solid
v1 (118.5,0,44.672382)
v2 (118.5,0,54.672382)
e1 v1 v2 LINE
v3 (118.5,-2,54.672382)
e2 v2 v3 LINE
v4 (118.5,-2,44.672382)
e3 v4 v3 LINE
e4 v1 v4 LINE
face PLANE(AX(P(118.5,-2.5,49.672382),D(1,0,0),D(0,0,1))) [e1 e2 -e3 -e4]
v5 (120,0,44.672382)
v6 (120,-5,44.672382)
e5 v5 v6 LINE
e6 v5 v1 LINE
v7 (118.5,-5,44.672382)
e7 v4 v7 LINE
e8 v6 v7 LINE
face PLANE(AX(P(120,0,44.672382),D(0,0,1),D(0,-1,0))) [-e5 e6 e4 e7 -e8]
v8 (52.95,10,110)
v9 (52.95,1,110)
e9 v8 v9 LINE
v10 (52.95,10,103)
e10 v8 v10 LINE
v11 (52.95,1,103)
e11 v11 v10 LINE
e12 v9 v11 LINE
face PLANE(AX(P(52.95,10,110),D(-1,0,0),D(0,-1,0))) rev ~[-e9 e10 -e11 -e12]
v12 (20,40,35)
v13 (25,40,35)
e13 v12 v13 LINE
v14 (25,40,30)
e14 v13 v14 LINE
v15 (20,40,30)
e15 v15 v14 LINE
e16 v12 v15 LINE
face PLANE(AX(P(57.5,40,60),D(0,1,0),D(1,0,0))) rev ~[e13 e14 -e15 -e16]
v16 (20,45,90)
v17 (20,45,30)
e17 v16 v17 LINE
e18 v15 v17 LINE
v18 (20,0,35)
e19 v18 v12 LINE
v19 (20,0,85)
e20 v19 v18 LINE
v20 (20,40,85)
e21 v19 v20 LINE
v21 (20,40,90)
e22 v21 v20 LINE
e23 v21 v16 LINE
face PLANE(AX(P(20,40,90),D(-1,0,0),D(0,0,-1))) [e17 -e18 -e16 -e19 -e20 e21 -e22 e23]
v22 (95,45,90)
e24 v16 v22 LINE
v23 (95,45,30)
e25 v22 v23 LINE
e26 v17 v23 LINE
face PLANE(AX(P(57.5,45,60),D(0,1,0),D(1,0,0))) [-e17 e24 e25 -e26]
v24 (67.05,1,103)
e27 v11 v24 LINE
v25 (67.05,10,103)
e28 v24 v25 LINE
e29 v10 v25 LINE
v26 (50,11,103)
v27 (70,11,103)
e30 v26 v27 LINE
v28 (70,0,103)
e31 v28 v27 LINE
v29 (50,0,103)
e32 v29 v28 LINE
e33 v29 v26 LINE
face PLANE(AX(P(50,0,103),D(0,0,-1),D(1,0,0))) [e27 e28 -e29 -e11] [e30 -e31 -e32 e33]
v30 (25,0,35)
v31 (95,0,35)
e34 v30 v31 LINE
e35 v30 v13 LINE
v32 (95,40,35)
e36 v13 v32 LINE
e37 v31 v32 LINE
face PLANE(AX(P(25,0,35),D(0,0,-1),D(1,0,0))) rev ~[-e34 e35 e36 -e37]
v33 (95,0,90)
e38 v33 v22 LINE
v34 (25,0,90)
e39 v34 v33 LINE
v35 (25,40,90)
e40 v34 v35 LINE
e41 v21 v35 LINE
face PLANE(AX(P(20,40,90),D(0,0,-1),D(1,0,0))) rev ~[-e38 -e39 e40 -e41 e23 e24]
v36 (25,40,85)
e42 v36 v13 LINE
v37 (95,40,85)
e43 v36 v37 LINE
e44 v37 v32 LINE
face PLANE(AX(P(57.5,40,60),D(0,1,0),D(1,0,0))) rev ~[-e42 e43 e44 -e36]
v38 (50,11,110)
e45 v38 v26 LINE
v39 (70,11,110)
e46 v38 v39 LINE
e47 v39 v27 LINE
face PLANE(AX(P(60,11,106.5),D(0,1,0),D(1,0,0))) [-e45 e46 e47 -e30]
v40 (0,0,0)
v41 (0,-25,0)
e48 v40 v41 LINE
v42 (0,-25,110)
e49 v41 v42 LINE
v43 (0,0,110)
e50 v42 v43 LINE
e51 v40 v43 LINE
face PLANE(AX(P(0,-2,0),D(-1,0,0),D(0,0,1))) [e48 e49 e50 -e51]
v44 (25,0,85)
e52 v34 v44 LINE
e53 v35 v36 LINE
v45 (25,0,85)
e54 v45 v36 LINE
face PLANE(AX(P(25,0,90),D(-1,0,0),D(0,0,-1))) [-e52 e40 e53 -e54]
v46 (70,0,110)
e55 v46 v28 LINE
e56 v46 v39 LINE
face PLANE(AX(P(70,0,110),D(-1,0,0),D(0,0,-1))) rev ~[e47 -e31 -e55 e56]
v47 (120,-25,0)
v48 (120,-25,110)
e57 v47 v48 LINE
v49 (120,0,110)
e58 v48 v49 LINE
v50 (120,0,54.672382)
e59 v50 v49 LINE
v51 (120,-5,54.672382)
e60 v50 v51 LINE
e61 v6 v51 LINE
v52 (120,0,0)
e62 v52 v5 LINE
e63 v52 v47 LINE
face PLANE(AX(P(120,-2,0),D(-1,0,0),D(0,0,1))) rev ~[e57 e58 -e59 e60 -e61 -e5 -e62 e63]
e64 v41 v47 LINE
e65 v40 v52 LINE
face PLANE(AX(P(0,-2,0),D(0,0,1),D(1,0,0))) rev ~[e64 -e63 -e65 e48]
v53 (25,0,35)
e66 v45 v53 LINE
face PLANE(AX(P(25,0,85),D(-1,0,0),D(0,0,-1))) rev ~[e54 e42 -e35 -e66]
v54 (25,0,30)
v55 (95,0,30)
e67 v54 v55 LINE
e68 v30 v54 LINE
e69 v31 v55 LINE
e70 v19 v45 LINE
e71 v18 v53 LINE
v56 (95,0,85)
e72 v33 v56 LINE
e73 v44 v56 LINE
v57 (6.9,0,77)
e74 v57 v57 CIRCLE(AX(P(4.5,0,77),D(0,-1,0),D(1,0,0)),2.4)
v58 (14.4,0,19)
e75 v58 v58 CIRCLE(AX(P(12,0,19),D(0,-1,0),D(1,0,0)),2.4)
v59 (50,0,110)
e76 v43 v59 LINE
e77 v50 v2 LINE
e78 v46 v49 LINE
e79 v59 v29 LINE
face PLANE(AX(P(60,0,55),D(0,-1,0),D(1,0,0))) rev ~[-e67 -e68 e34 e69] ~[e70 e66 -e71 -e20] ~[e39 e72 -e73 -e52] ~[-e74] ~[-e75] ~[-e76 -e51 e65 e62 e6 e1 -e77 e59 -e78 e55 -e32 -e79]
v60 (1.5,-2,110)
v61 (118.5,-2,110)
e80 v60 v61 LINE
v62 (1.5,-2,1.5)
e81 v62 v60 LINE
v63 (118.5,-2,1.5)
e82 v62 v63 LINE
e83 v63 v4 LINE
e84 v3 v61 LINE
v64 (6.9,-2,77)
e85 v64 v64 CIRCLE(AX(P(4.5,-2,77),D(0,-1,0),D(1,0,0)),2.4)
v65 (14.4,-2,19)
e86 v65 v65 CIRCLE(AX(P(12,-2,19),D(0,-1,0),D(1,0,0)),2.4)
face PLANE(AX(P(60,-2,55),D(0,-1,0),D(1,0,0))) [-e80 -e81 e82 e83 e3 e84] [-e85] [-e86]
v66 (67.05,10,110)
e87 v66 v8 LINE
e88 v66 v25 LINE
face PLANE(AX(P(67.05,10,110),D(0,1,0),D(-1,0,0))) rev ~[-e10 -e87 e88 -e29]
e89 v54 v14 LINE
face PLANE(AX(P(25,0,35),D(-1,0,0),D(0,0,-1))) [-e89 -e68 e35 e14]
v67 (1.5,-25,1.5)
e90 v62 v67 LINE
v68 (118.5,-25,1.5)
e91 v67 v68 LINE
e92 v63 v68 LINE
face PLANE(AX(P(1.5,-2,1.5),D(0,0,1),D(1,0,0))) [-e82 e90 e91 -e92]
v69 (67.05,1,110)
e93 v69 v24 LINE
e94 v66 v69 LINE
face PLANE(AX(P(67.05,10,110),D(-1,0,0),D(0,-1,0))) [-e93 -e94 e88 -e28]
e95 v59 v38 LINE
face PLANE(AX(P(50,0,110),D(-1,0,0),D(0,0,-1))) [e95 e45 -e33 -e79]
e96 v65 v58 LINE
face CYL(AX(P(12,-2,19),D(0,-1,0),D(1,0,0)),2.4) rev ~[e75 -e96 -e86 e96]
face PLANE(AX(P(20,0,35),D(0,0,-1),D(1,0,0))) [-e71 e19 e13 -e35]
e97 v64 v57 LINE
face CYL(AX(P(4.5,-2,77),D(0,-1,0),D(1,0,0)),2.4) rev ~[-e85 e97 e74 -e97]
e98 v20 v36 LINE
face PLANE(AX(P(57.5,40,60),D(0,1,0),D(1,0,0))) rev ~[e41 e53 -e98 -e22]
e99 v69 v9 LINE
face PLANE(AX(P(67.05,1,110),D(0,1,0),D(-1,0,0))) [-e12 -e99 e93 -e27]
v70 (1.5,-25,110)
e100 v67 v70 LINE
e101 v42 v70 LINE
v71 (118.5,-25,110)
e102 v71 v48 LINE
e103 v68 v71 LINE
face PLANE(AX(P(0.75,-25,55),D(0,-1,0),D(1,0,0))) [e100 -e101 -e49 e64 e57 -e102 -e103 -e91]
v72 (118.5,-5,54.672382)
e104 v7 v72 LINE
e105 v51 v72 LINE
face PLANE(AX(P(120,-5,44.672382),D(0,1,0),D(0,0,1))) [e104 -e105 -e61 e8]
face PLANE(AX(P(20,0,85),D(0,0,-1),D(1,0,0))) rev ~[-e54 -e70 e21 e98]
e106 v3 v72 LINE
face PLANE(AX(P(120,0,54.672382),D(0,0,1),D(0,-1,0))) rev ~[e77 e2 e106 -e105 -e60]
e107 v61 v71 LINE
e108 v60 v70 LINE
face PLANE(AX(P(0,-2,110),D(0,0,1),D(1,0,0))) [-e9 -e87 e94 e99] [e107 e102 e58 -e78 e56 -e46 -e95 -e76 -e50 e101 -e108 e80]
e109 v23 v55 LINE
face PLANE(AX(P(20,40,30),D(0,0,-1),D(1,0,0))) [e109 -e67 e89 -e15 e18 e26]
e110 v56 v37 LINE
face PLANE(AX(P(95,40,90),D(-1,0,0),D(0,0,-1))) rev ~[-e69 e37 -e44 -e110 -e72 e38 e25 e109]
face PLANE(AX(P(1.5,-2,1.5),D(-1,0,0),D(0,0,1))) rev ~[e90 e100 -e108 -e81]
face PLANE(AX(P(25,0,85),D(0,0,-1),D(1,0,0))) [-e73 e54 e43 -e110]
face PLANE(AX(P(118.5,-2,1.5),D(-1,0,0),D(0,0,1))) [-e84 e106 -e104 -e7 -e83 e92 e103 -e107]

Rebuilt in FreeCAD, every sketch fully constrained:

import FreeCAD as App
import Part
import Sketcher
from FreeCAD import Vector
Q = App.Units.Quantity


def add_polygon(sketch, points):
    """Adds a closed chain of lines whose ends are joined by coincident constraints."""
    first, n = sketch.GeometryCount, len(points)
    for a, b in zip(points, points[1:] + points[:1]):
        sketch.addGeometry(Part.LineSegment(App.Vector(*a, 0), App.Vector(*b, 0)), False)
    for i in range(n):
        sketch.addConstraint(Sketcher.Constraint("Coincident", first + i, 2, first + (i + 1) % n, 1))

doc = App.newDocument("Part")
body = doc.addObject("PartDesign::Body", "Body")

sketch1 = body.newObject("Sketcher::SketchObject", "Sketch")
sketch1.AttachmentSupport = (doc.getObject("XZ_Plane"), [""])
sketch1.MapMode = "FlatFace"
add_polygon(sketch1, [(0, 110), (0, 0), (120, 0), (120, 110)])
sketch1.addConstraint([
    Sketcher.Constraint("Vertical", 0),
    Sketcher.Constraint("Horizontal", 1),
    Sketcher.Constraint("Vertical", 2),
    Sketcher.Constraint("Horizontal", 3),
    Sketcher.Constraint("Coincident", 0, 2, -1, 1),
    Sketcher.Constraint("DistanceX", 1, 1, 1, 2, Q("120 mm")),
    Sketcher.Constraint("DistanceY", 0, 2, 0, 1, Q("110 mm")),
])
pad1 = body.newObject("PartDesign::Pad", "Pad")
pad1.Profile = sketch1
pad1.Length = 2

sketch2 = body.newObject("Sketcher::SketchObject", "Sketch001")
sketch2.AttachmentSupport = (doc.getObject("XZ_Plane"), [""])
sketch2.MapMode = "FlatFace"
sketch2.AttachmentOffset = App.Placement(Vector(0, 0, 2), App.Rotation())
sketch2.addGeometry([
    Part.Circle(Vector(12, 19, 0), Vector(0, 0, 1), 2.4),
    Part.Circle(Vector(4.5, 77, 0), Vector(0, 0, 1), 2.4),
], False)
sketch2.addConstraint([
    Sketcher.Constraint("Equal", 0, 1),
    Sketcher.Constraint("Diameter", 0, Q("4.8 mm")),
    Sketcher.Constraint("DistanceX", -1, 1, 0, 3, Q("12 mm")),
    Sketcher.Constraint("DistanceY", -1, 1, 0, 3, Q("19 mm")),
    Sketcher.Constraint("DistanceY", -1, 1, 1, 3, Q("77 mm")),
    Sketcher.Constraint("DistanceX", -1, 1, 1, 3, Q("4.5 mm")),
])
pocket1 = body.newObject("PartDesign::Pocket", "Pocket")
pocket1.Profile = sketch2
pocket1.Length = 5

sketch3 = body.newObject("Sketcher::SketchObject", "Sketch002")
sketch3.AttachmentSupport = (doc.getObject("XZ_Plane"), [""])
sketch3.MapMode = "FlatFace"
sketch3.AttachmentOffset = App.Placement(Vector(0, 0, 2), App.Rotation())
add_polygon(sketch3, [(0, 110), (0, 0), (120, 0), (120, 110), (118.5, 110), (118.5, 1.5), (1.5, 1.5), (1.5, 110)])
sketch3.addConstraint([
    Sketcher.Constraint("Vertical", 0),
    Sketcher.Constraint("Horizontal", 1),
    Sketcher.Constraint("Vertical", 2),
    Sketcher.Constraint("Horizontal", 3),
    Sketcher.Constraint("Vertical", 4),
    Sketcher.Constraint("Horizontal", 5),
    Sketcher.Constraint("Vertical", 6),
    Sketcher.Constraint("Horizontal", 7),
    Sketcher.Constraint("Coincident", 0, 2, -1, 1),
    Sketcher.Constraint("Horizontal", 3, 2, 6, 2),
    Sketcher.Constraint("Equal", 3, 7),
    Sketcher.Constraint("DistanceX", 1, 1, 1, 2, Q("120 mm")),
    Sketcher.Constraint("DistanceX", 5, 2, 5, 1, Q("117 mm")),
    Sketcher.Constraint("DistanceY", 0, 2, 0, 1, Q("110 mm")),
    Sketcher.Constraint("DistanceY", 4, 2, 4, 1, Q("108.5 mm")),
])
pad2 = body.newObject("PartDesign::Pad", "Pad001")
pad2.Profile = sketch3
pad2.Length = 23

sketch4 = body.newObject("Sketcher::SketchObject", "Sketch003")
sketch4.AttachmentSupport = (doc.getObject("YZ_Plane"), [""])
sketch4.MapMode = "FlatFace"
sketch4.AttachmentOffset = App.Placement(Vector(0, 0, 120), App.Rotation())
add_polygon(sketch4, [(-5, 44.672382), (0, 44.672382), (0, 54.672382), (-5, 54.672382)])
sketch4.addConstraint([
    Sketcher.Constraint("Horizontal", 0),
    Sketcher.Constraint("Vertical", 1),
    Sketcher.Constraint("Horizontal", 2),
    Sketcher.Constraint("Vertical", 3),
    Sketcher.Constraint("PointOnObject", 0, 2, -2),
    Sketcher.Constraint("DistanceX", 0, 1, 0, 2, Q("5 mm")),
    Sketcher.Constraint("DistanceY", 1, 1, 1, 2, Q("10 mm")),
    Sketcher.Constraint("DistanceY", -1, 1, 0, 2, Q("44.672382 mm")),
])
pocket2 = body.newObject("PartDesign::Pocket", "Pocket001")
pocket2.Profile = sketch4
pocket2.Length = 1.5

sketch5 = body.newObject("Sketcher::SketchObject", "Sketch004")
sketch5.AttachmentSupport = (doc.getObject("XZ_Plane"), [""])
sketch5.MapMode = "FlatFace"
add_polygon(sketch5, [(25, 30), (25, 35), (95, 35), (95, 30)])
add_polygon(sketch5, [(20, 35), (20, 85), (25, 85), (25, 35)])
add_polygon(sketch5, [(25, 85), (25, 90), (95, 90), (95, 85)])
sketch5.addConstraint([
    Sketcher.Constraint("Vertical", 0),
    Sketcher.Constraint("Horizontal", 1),
    Sketcher.Constraint("Vertical", 2),
    Sketcher.Constraint("Horizontal", 3),
    Sketcher.Constraint("Vertical", 4),
    Sketcher.Constraint("Horizontal", 5),
    Sketcher.Constraint("Vertical", 6),
    Sketcher.Constraint("Horizontal", 7),
    Sketcher.Constraint("Vertical", 8),
    Sketcher.Constraint("Horizontal", 9),
    Sketcher.Constraint("Vertical", 10),
    Sketcher.Constraint("Horizontal", 11),
    Sketcher.Constraint("Coincident", 6, 2, 0, 2),
    Sketcher.Constraint("Coincident", 11, 2, 5, 2),
    Sketcher.Constraint("Vertical", 2, 2, 9, 2),
    Sketcher.Constraint("Equal", 7, 0),
    Sketcher.Constraint("Equal", 2, 8),
    Sketcher.Constraint("DistanceX", 1, 1, 1, 2, Q("70 mm")),
    Sketcher.Constraint("DistanceX", 5, 1, 5, 2, Q("5 mm")),
    Sketcher.Constraint("DistanceY", 4, 1, 4, 2, Q("50 mm")),
    Sketcher.Constraint("DistanceX", -1, 1, 0, 2, Q("25 mm")),
    Sketcher.Constraint("DistanceY", -1, 1, 0, 2, Q("35 mm")),
])
pad3 = body.newObject("PartDesign::Pad", "Pad002")
pad3.Profile = sketch5
pad3.Length = 40
pad3.Reversed = True

sketch6 = body.newObject("Sketcher::SketchObject", "Sketch005")
sketch6.AttachmentSupport = (doc.getObject("XZ_Plane"), [""])
sketch6.MapMode = "FlatFace"
sketch6.AttachmentOffset = App.Placement(Vector(0, 0, -40), App.Rotation())
add_polygon(sketch6, [(20, 30), (20, 90), (95, 90), (95, 30)])
sketch6.addConstraint([
    Sketcher.Constraint("Vertical", 0),
    Sketcher.Constraint("Horizontal", 1),
    Sketcher.Constraint("Vertical", 2),
    Sketcher.Constraint("Horizontal", 3),
    Sketcher.Constraint("DistanceX", 1, 1, 1, 2, Q("75 mm")),
    Sketcher.Constraint("DistanceY", 0, 1, 0, 2, Q("60 mm")),
    Sketcher.Constraint("DistanceX", -1, 1, 0, 2, Q("20 mm")),
    Sketcher.Constraint("DistanceY", -1, 1, 0, 2, Q("90 mm")),
])
pad4 = body.newObject("PartDesign::Pad", "Pad003")
pad4.Profile = sketch6
pad4.Length = 5
pad4.Reversed = True

sketch7 = body.newObject("Sketcher::SketchObject", "Sketch006")
sketch7.AttachmentSupport = (doc.getObject("XZ_Plane"), [""])
sketch7.MapMode = "FlatFace"
add_polygon(sketch7, [(50, 103), (50, 110), (70, 110), (70, 103)])
sketch7.addConstraint([
    Sketcher.Constraint("Vertical", 0),
    Sketcher.Constraint("Horizontal", 1),
    Sketcher.Constraint("Vertical", 2),
    Sketcher.Constraint("Horizontal", 3),
    Sketcher.Constraint("DistanceX", 1, 1, 1, 2, Q("20 mm")),
    Sketcher.Constraint("DistanceY", 0, 1, 0, 2, Q("7 mm")),
    Sketcher.Constraint("DistanceX", -1, 1, 0, 2, Q("50 mm")),
    Sketcher.Constraint("DistanceY", -1, 1, 0, 2, Q("110 mm")),
])
pad5 = body.newObject("PartDesign::Pad", "Pad004")
pad5.Profile = sketch7
pad5.Length = 11
pad5.Reversed = True

sketch8 = body.newObject("Sketcher::SketchObject", "Sketch007")
sketch8.AttachmentSupport = (doc.getObject("XY_Plane"), [""])
sketch8.MapMode = "FlatFace"
sketch8.AttachmentOffset = App.Placement(Vector(0, 0, 110), App.Rotation())
add_polygon(sketch8, [(67.05, 1), (67.05, 10), (52.95, 10), (52.95, 1)])
sketch8.addConstraint([
    Sketcher.Constraint("Vertical", 0),
    Sketcher.Constraint("Horizontal", 1),
    Sketcher.Constraint("Vertical", 2),
    Sketcher.Constraint("Horizontal", 3),
    Sketcher.Constraint("DistanceY", 0, 1, 0, 2, Q("9 mm")),
    Sketcher.Constraint("DistanceX", 1, 2, 1, 1, Q("14.1 mm")),
    Sketcher.Constraint("DistanceY", -1, 1, 0, 2, Q("10 mm")),
    Sketcher.Constraint("DistanceX", -1, 1, 0, 2, Q("67.05 mm")),
])
pocket3 = body.newObject("PartDesign::Pocket", "Pocket002")
pocket3.Profile = sketch8
pocket3.Length = 10

doc.recompute()
